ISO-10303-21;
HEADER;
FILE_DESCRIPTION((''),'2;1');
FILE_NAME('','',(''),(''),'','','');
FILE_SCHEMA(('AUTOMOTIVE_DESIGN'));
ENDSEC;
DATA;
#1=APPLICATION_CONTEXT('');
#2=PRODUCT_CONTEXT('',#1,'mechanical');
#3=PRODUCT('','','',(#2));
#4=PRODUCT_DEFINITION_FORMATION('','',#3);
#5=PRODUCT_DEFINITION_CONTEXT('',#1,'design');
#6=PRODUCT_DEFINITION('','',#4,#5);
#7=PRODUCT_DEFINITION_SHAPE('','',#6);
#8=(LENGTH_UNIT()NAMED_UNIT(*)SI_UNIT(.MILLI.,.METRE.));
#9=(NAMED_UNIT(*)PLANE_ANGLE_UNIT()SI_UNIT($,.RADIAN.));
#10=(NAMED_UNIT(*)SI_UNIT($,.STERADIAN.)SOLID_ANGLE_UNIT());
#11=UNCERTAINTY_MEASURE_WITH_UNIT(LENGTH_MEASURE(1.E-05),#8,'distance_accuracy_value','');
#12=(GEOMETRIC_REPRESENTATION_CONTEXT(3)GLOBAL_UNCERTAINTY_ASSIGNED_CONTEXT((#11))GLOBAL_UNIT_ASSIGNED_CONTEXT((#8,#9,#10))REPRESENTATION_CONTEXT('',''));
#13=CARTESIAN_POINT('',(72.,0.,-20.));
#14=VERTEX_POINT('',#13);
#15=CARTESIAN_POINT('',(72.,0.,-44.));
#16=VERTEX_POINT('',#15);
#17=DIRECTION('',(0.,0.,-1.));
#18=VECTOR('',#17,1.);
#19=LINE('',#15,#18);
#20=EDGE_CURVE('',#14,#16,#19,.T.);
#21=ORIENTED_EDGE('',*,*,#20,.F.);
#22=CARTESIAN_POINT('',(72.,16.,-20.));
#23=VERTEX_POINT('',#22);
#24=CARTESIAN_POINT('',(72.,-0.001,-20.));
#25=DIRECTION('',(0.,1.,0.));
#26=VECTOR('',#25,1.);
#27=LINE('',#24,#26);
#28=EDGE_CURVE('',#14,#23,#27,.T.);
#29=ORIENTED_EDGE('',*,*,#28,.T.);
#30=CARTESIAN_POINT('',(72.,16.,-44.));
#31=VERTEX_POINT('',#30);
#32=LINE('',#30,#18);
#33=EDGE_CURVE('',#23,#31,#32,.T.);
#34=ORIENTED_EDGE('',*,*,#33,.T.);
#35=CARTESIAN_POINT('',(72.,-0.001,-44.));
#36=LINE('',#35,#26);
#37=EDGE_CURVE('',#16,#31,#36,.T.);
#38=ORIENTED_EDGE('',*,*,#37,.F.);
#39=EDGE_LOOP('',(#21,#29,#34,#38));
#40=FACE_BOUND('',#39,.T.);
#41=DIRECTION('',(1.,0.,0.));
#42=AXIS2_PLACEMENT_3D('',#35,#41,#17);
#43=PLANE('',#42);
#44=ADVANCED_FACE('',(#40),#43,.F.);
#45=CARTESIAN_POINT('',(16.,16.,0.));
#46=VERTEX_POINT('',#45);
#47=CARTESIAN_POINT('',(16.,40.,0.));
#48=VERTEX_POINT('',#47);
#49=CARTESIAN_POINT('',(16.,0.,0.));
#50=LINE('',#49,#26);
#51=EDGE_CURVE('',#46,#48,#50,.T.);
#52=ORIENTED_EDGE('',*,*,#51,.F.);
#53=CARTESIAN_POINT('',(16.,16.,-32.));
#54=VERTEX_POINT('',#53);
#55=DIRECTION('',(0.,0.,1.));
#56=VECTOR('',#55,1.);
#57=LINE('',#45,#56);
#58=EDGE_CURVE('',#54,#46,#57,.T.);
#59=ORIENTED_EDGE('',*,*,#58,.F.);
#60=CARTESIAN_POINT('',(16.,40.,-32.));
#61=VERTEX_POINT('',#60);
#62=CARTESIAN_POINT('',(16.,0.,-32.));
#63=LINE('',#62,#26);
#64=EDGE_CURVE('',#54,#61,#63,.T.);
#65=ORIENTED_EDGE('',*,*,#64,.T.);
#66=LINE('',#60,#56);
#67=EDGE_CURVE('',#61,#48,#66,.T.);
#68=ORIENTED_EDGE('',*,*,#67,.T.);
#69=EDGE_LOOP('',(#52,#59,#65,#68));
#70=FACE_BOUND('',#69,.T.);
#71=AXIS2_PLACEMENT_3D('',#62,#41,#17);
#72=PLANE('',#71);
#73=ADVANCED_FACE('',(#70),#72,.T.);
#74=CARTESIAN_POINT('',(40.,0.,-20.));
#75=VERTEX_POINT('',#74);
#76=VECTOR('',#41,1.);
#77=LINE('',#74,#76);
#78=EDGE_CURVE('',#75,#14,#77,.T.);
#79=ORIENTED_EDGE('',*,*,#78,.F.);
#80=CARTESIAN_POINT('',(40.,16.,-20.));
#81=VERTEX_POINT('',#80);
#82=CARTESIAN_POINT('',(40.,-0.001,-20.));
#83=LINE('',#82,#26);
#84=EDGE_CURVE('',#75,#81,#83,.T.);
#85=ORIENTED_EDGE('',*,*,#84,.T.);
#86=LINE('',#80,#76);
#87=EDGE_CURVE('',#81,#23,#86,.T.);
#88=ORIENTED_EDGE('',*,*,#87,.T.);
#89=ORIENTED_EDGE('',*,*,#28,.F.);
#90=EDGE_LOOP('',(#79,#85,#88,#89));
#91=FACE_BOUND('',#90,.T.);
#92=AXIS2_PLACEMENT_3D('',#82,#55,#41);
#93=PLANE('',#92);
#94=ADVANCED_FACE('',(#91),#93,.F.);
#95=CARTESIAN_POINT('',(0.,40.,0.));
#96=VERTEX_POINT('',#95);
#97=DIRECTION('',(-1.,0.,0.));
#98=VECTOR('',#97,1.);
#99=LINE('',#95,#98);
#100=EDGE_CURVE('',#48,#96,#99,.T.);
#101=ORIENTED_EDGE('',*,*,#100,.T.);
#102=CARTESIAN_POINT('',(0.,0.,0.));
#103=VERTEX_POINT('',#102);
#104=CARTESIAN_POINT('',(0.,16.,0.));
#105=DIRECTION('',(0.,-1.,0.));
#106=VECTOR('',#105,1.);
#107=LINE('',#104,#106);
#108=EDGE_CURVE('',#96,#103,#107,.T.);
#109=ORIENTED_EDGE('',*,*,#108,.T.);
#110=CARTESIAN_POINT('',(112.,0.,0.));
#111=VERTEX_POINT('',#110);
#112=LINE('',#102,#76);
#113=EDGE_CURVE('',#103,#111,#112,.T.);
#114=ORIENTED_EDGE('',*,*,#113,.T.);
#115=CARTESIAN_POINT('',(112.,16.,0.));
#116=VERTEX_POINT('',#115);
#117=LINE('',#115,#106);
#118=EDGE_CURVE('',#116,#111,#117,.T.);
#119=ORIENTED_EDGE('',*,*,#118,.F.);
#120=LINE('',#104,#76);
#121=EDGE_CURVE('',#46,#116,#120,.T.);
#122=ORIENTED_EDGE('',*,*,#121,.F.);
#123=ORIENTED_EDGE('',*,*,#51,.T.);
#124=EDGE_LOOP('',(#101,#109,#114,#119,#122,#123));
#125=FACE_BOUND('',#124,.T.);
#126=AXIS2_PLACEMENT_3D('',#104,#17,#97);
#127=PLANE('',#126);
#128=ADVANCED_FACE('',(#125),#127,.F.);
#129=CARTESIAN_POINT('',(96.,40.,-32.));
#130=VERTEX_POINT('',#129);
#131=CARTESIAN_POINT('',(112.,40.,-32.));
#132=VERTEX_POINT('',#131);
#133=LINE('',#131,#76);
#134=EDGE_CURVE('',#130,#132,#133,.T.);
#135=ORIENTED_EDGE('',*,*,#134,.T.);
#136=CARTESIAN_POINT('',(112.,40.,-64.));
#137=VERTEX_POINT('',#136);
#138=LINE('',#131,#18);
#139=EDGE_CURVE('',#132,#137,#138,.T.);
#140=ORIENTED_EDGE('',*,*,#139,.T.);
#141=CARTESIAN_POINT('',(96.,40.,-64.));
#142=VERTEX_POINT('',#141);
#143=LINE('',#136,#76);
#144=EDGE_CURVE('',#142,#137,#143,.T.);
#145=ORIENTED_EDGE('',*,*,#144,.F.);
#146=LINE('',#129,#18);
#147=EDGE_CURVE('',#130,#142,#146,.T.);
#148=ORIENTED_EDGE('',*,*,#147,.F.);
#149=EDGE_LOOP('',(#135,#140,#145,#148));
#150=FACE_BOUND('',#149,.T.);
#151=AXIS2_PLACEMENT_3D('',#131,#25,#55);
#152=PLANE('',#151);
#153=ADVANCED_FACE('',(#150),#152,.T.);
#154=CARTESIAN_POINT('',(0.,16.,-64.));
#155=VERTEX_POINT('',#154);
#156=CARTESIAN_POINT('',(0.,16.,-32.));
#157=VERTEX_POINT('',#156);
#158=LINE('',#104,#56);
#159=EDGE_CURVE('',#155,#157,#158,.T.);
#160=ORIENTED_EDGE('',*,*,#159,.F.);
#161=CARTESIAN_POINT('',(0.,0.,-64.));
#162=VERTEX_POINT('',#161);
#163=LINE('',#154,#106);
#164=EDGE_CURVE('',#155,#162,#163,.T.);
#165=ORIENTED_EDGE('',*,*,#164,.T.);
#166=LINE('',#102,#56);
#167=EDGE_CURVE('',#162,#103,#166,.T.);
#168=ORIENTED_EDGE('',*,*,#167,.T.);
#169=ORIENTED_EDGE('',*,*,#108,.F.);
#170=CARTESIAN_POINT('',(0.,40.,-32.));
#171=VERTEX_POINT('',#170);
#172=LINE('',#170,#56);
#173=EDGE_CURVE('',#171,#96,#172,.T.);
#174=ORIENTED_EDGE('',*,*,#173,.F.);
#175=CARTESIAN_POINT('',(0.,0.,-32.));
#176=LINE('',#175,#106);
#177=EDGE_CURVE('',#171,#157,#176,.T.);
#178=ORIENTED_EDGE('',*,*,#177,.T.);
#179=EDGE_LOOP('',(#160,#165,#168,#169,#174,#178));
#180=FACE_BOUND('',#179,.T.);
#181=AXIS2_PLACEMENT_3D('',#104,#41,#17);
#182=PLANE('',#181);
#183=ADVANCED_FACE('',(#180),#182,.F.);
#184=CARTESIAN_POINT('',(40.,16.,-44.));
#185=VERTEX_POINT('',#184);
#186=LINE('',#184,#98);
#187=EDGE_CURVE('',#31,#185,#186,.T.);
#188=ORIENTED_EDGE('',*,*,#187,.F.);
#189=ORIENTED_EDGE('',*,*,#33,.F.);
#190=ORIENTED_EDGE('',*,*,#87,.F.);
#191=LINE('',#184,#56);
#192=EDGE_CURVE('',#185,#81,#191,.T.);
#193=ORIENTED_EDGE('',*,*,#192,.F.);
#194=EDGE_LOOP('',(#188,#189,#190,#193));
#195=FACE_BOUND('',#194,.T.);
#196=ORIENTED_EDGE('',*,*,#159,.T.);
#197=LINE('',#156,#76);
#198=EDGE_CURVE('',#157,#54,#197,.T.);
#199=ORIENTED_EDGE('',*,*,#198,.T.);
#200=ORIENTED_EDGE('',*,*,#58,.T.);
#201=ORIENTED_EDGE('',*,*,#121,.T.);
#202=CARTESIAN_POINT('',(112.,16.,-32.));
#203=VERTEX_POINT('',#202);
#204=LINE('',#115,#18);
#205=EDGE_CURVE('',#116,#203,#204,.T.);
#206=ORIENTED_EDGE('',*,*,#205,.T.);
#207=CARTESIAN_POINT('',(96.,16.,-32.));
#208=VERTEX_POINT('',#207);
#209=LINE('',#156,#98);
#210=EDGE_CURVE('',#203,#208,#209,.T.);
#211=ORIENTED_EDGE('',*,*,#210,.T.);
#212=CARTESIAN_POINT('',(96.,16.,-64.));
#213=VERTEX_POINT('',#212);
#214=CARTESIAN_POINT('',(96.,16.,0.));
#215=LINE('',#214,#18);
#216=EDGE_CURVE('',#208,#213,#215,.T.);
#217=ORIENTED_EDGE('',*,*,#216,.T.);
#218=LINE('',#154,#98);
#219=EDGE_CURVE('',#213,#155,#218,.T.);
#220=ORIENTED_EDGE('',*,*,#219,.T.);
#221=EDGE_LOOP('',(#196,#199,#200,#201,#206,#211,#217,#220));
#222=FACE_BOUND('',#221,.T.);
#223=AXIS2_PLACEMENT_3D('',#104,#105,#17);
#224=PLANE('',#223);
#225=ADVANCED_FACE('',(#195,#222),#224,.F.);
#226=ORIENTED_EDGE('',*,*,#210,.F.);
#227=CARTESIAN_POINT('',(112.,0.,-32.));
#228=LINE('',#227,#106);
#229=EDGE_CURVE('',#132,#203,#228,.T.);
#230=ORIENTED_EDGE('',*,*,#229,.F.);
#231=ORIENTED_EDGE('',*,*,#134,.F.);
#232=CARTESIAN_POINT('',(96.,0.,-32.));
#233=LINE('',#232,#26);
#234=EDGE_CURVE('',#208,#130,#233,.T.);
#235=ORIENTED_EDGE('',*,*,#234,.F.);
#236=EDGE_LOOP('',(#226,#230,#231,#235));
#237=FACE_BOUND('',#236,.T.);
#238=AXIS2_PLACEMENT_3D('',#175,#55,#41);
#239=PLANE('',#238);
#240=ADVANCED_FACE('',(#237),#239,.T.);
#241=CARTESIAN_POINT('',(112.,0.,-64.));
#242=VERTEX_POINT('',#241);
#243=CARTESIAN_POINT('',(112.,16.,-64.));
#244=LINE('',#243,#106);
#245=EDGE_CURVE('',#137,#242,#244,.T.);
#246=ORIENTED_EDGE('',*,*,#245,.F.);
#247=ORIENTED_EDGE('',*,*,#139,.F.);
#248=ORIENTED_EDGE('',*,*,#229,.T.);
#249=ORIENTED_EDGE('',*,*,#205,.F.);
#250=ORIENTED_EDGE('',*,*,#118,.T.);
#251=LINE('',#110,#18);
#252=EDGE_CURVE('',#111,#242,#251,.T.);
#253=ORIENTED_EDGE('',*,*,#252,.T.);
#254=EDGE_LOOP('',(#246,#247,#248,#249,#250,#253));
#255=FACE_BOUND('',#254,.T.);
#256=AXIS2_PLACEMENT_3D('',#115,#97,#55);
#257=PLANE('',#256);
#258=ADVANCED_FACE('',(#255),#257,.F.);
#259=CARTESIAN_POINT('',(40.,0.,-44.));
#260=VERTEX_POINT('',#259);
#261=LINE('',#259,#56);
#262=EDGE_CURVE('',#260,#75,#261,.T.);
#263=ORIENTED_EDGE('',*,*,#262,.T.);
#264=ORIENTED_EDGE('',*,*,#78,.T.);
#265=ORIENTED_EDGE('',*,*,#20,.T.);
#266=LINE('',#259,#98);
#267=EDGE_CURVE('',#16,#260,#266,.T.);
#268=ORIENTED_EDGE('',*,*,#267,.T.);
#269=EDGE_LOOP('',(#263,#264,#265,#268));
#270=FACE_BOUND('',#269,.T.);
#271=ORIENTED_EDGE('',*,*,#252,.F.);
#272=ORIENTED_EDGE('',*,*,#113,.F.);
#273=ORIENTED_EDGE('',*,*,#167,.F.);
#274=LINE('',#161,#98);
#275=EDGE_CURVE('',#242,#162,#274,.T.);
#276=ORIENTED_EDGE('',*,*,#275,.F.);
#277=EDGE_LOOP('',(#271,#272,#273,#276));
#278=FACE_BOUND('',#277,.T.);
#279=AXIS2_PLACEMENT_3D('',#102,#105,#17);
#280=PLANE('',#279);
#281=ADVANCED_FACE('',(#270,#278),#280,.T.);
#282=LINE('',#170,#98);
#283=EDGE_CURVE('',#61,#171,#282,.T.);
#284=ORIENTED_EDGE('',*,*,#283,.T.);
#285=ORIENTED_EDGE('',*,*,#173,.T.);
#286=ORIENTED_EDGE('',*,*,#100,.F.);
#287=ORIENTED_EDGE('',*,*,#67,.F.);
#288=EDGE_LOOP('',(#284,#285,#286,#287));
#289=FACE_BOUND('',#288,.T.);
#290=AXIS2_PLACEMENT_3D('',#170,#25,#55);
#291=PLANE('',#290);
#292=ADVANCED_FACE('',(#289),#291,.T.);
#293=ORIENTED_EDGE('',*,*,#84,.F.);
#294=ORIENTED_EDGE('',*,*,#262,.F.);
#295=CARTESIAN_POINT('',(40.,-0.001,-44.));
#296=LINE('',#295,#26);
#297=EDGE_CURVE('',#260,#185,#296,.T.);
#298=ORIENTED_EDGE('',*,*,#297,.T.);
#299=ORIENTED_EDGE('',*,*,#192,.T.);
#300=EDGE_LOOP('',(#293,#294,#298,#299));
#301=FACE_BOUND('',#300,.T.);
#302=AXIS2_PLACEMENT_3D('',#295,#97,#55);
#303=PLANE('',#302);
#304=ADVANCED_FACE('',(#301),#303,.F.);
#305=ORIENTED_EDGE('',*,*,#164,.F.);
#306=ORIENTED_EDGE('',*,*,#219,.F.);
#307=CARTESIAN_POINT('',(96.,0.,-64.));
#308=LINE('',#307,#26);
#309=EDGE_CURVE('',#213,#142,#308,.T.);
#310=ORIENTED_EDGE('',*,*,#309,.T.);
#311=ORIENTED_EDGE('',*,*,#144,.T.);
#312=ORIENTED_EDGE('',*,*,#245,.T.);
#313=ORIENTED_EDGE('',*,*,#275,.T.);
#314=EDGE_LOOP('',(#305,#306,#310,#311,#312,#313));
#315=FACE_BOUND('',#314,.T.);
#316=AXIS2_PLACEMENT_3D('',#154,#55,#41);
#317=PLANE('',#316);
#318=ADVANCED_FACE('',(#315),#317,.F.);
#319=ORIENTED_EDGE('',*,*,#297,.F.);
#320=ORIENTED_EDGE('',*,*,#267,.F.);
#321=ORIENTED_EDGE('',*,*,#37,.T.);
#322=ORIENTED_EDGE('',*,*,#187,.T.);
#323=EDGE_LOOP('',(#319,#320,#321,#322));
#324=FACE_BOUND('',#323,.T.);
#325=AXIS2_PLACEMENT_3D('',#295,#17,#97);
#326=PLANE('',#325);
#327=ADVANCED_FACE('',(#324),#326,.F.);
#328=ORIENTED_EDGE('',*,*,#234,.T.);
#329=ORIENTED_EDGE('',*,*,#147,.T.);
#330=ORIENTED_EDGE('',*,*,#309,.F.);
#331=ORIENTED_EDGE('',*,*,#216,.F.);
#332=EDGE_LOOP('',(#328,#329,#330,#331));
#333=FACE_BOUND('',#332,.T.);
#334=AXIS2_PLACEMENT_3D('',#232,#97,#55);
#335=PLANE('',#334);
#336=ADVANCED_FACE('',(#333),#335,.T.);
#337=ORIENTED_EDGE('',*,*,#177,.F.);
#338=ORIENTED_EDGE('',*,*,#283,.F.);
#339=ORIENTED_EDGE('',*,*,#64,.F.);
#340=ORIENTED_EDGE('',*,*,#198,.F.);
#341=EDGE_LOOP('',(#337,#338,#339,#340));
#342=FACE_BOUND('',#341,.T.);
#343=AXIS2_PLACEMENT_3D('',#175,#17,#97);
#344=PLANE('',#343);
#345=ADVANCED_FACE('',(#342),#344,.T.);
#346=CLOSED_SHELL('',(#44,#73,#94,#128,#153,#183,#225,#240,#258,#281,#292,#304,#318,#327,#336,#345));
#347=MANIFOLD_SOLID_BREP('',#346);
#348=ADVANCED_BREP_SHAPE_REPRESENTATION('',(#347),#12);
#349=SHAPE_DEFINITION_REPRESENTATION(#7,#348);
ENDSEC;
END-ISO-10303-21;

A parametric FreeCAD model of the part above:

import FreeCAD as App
import Part
import Sketcher

V = App.Vector


def add_polygon(sketch, points):
    """Adds a closed chain of lines whose ends are joined by coincident constraints."""
    first, n = sketch.GeometryCount, len(points)
    for a, b in zip(points, points[1:] + points[:1]):
        sketch.addGeometry(Part.LineSegment(App.Vector(*a, 0), App.Vector(*b, 0)), False)
    for i in range(n):
        sketch.addConstraint(Sketcher.Constraint("Coincident", first + i, 2, first + (i + 1) % n, 1))

doc = App.newDocument("Part")
body = doc.addObject("PartDesign::Body", "Body")

sketch1 = body.newObject("Sketcher::SketchObject", "Sketch")
sketch1.AttachmentSupport = (doc.getObject("XZ_Plane"), [""])
sketch1.MapMode = "FlatFace"
add_polygon(sketch1, [(0, -64), (0, 0), (112, 0), (112, -64)])
sketch1.addConstraint([
    Sketcher.Constraint("Vertical", 0),
    Sketcher.Constraint("Horizontal", 1),
    Sketcher.Constraint("Vertical", 2),
    Sketcher.Constraint("Horizontal", 3),
    Sketcher.Constraint("Coincident", 0, 2, -1, 1),
    Sketcher.Constraint("DistanceX", 1, 1, 1, 2, 112.0),
    Sketcher.Constraint("DistanceY", 0, 1, 0, 2, 64.0),
])
pad1 = body.newObject("PartDesign::Pad", "Pad")
pad1.Profile = sketch1
pad1.Length = 16
pad1.Reversed = True

sketch2 = body.newObject("Sketcher::SketchObject", "Sketch001")
sketch2.AttachmentSupport = (doc.getObject("XY_Plane"), [""])
sketch2.MapMode = "FlatFace"
add_polygon(sketch2, [(0, 40), (0, 0), (16, 0), (16, 40)])
sketch2.addConstraint([
    Sketcher.Constraint("Vertical", 0),
    Sketcher.Constraint("Horizontal", 1),
    Sketcher.Constraint("Vertical", 2),
    Sketcher.Constraint("Horizontal", 3),
    Sketcher.Constraint("Coincident", 0, 2, -1, 1),
    Sketcher.Constraint("DistanceX", 1, 1, 1, 2, 16.0),
    Sketcher.Constraint("DistanceY", 0, 2, 0, 1, 40.0),
])
pad2 = body.newObject("PartDesign::Pad", "Pad001")
pad2.Profile = sketch2
pad2.Length = 32
pad2.Reversed = True

sketch3 = body.newObject("Sketcher::SketchObject", "Sketch002")
sketch3.AttachmentSupport = (doc.getObject("XY_Plane"), [""])
sketch3.MapMode = "FlatFace"
sketch3.AttachmentOffset = App.Placement(V(0, 0, -64), App.Rotation())
add_polygon(sketch3, [(112, 40), (112, 0), (96, 0), (96, 40)])
sketch3.addConstraint([
    Sketcher.Constraint("Vertical", 0),
    Sketcher.Constraint("Horizontal", 1),
    Sketcher.Constraint("Vertical", 2),
    Sketcher.Constraint("Horizontal", 3),
    Sketcher.Constraint("PointOnObject", 0, 2, -1),
    Sketcher.Constraint("DistanceX", 1, 2, 1, 1, 16.0),
    Sketcher.Constraint("DistanceY", 0, 2, 0, 1, 40.0),
    Sketcher.Constraint("DistanceX", -1, 1, 0, 2, 112.0),
])
pad3 = body.newObject("PartDesign::Pad", "Pad002")
pad3.Profile = sketch3
pad3.Length = 32

sketch4 = body.newObject("Sketcher::SketchObject", "Sketch003")
sketch4.AttachmentSupport = (doc.getObject("XZ_Plane"), [""])
sketch4.MapMode = "FlatFace"
sketch4.AttachmentOffset = App.Placement(V(0, 0, -16), App.Rotation())
add_polygon(sketch4, [(40, -44), (40, -20), (72, -20), (72, -44)])
sketch4.addConstraint([
    Sketcher.Constraint("Vertical", 0),
    Sketcher.Constraint("Horizontal", 1),
    Sketcher.Constraint("Vertical", 2),
    Sketcher.Constraint("Horizontal", 3),
    Sketcher.Constraint("DistanceX", 1, 1, 1, 2, 32.0),
    Sketcher.Constraint("DistanceY", 0, 1, 0, 2, 24.0),
    Sketcher.Constraint("DistanceX", -1, 1, 0, 2, 40.0),
    Sketcher.Constraint("DistanceY", 0, 2, -1, 1, 20.0),
])
pocket1 = body.newObject("PartDesign::Pocket", "Pocket")
pocket1.Profile = sketch4
pocket1.Type = "UpToFirst"
pocket1.Reversed = True

doc.recompute()
